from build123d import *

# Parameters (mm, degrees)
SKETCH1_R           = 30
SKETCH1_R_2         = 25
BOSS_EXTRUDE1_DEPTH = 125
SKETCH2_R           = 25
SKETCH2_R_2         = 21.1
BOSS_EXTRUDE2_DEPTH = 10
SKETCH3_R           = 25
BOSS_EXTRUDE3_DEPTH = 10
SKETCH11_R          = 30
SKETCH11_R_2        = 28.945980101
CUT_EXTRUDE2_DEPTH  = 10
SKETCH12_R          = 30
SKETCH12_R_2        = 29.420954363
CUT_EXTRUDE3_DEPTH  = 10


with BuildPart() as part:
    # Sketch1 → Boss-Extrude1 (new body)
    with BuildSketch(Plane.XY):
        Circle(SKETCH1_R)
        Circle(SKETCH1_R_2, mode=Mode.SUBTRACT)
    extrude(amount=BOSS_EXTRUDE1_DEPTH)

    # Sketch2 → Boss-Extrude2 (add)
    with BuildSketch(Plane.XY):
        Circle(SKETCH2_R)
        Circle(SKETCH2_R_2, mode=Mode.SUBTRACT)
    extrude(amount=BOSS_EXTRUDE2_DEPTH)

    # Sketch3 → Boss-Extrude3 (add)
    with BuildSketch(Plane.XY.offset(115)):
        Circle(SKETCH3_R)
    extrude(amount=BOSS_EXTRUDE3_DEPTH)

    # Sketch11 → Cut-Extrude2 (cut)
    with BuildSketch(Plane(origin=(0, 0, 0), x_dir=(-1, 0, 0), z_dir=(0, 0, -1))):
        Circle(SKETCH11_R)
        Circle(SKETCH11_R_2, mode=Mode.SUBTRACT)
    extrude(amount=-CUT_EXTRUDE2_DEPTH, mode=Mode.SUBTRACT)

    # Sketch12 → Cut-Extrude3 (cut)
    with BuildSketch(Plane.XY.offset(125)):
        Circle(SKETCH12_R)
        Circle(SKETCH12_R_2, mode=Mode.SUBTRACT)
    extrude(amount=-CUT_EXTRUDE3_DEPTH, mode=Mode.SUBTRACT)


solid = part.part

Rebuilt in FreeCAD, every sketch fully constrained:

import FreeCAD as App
import Part
import Sketcher

doc = App.newDocument("Part")
body = doc.addObject("PartDesign::Body", "Body")

sketch1 = body.newObject("Sketcher::SketchObject", "Sketch")
sketch1.AttachmentSupport = (doc.getObject("XY_Plane"), [""])
sketch1.MapMode = "FlatFace"
sketch1.addGeometry([
    Part.Circle(App.Vector(0, 0, 0), App.Vector(0, 0, 1), 30),
    Part.Circle(App.Vector(0, 0, 0), App.Vector(0, 0, 1), 25),
], False)
sketch1.addConstraint([
    Sketcher.Constraint("Coincident", 0, 3, -1, 1),
    Sketcher.Constraint("Coincident", 1, 3, -1, 1),
    Sketcher.Constraint("Diameter", 0, 60.0),
    Sketcher.Constraint("Diameter", 1, 50.0),
])
pad1 = body.newObject("PartDesign::Pad", "Pad")
pad1.Profile = sketch1
pad1.Length = 125

sketch2 = body.newObject("Sketcher::SketchObject", "Sketch001")
sketch2.AttachmentSupport = (doc.getObject("XY_Plane"), [""])
sketch2.MapMode = "FlatFace"
sketch2.addGeometry([
    Part.Circle(App.Vector(0, 0, 0), App.Vector(0, 0, 1), 25),
    Part.Circle(App.Vector(0, 0, 0), App.Vector(0, 0, 1), 21),
], False)
sketch2.addConstraint([
    Sketcher.Constraint("Coincident", 0, 3, -1, 1),
    Sketcher.Constraint("Coincident", 1, 3, -1, 1),
    Sketcher.Constraint("Diameter", 0, 50.0),
    Sketcher.Constraint("Diameter", 1, 42.2),
])
pad2 = body.newObject("PartDesign::Pad", "Pad001")
pad2.Profile = sketch2
pad2.Length = 10

sketch3 = body.newObject("Sketcher::SketchObject", "Sketch002")
sketch3.AttachmentSupport = (doc.getObject("XY_Plane"), [""])
sketch3.MapMode = "FlatFace"
sketch3.AttachmentOffset = App.Placement(App.Vector(0, 0, 115), App.Rotation())
sketch3.addGeometry(Part.Circle(App.Vector(0, 0, 0), App.Vector(0, 0, 1), 25), False)
sketch3.addConstraint([
    Sketcher.Constraint("Coincident", 0, 3, -1, 1),
    Sketcher.Constraint("Diameter", 0, 50.0),
])
pad3 = body.newObject("PartDesign::Pad", "Pad002")
pad3.Profile = sketch3
pad3.Length = 10

sketch4 = body.newObject("Sketcher::SketchObject", "Sketch003")
sketch4.AttachmentSupport = (doc.getObject("XY_Plane"), [""])
sketch4.MapMode = "FlatFace"
sketch4.addGeometry([
    Part.Circle(App.Vector(0, 0, 0), App.Vector(0, 0, 1), 30),
    Part.Circle(App.Vector(0, 0, 0), App.Vector(0, 0, 1), 29),
], False)
sketch4.addConstraint([
    Sketcher.Constraint("Coincident", 0, 3, -1, 1),
    Sketcher.Constraint("Coincident", 1, 3, -1, 1),
    Sketcher.Constraint("Diameter", 0, 60.0),
    Sketcher.Constraint("Diameter", 1, 57.89196),
])
pocket1 = body.newObject("PartDesign::Pocket", "Pocket")
pocket1.Profile = sketch4
pocket1.Length = 10
pocket1.Reversed = True

sketch5 = body.newObject("Sketcher::SketchObject", "Sketch004")
sketch5.AttachmentSupport = (doc.getObject("XY_Plane"), [""])
sketch5.MapMode = "FlatFace"
sketch5.AttachmentOffset = App.Placement(App.Vector(0, 0, 125), App.Rotation())
sketch5.addGeometry([
    Part.Circle(App.Vector(0, 0, 0), App.Vector(0, 0, 1), 30),
    Part.Circle(App.Vector(0, 0, 0), App.Vector(0, 0, 1), 29),
], False)
sketch5.addConstraint([
    Sketcher.Constraint("Coincident", 0, 3, -1, 1),
    Sketcher.Constraint("Coincident", 1, 3, -1, 1),
    Sketcher.Constraint("Diameter", 0, 60.0),
    Sketcher.Constraint("Diameter", 1, 58.841909),
])
pocket2 = body.newObject("PartDesign::Pocket", "Pocket001")
pocket2.Profile = sketch5
pocket2.Length = 10

doc.recompute()
